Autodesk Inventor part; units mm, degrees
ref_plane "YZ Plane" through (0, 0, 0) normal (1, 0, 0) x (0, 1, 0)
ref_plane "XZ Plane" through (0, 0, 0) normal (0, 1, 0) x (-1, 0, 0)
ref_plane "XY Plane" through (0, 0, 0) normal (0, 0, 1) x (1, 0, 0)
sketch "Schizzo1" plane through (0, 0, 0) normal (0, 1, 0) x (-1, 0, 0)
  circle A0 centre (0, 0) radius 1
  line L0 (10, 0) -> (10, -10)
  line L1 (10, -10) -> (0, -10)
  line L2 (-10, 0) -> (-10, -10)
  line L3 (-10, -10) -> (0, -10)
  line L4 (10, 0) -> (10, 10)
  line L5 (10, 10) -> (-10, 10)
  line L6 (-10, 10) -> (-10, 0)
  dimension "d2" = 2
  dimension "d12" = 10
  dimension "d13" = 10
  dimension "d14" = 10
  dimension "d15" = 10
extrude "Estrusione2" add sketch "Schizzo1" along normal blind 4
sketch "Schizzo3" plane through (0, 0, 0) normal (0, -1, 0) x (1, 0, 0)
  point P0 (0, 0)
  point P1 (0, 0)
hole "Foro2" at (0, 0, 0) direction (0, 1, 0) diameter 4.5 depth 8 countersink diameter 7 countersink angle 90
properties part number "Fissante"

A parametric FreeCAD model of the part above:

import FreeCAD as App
import Part
import Sketcher

doc = App.newDocument("Part")
body = doc.addObject("PartDesign::Body", "Body")

sketch1 = body.newObject("Sketcher::SketchObject", "Sketch")
sketch1.AttachmentSupport = (doc.getObject("XZ_Plane"), [""])
sketch1.MapMode = "FlatFace"
sketch1.addGeometry(Part.LineSegment(App.Vector(-10, -10, 0), App.Vector(-10, 10, 0)), False)
sketch1.addGeometry(Part.LineSegment(App.Vector(-10, 10, 0), App.Vector(10, 10, 0)), False)
sketch1.addGeometry(Part.LineSegment(App.Vector(10, 10, 0), App.Vector(10, -10, 0)), False)
sketch1.addGeometry(Part.LineSegment(App.Vector(10, -10, 0), App.Vector(-10, -10, 0)), False)
sketch1.addGeometry(Part.Circle(App.Vector(0, 0, 0), App.Vector(0, 0, 1), 1), False)
sketch1.addConstraint(Sketcher.Constraint("Coincident", 0, 2, 1, 1))
sketch1.addConstraint(Sketcher.Constraint("Coincident", 1, 2, 2, 1))
sketch1.addConstraint(Sketcher.Constraint("Coincident", 2, 2, 3, 1))
sketch1.addConstraint(Sketcher.Constraint("Coincident", 3, 2, 0, 1))
sketch1.addConstraint(Sketcher.Constraint("Vertical", 0))
sketch1.addConstraint(Sketcher.Constraint("Horizontal", 1))
sketch1.addConstraint(Sketcher.Constraint("Vertical", 2))
sketch1.addConstraint(Sketcher.Constraint("Horizontal", 3))
sketch1.addConstraint(Sketcher.Constraint("Coincident", 4, 3, -1, 1))
sketch1.addConstraint(Sketcher.Constraint("Symmetric", 0, 2, 2, 2, -1, 1))
sketch1.addConstraint(Sketcher.Constraint("Equal", 3, 0))
sketch1.addConstraint(Sketcher.Constraint("Diameter", 4, 2.0))
sketch1.addConstraint(Sketcher.Constraint("DistanceX", 0, 2, -1, 1, 10.0))
pad1 = body.newObject("PartDesign::Pad", "Pad")
pad1.Profile = sketch1
pad1.Length = 4
pad1.Reversed = True

sketch2 = body.newObject("Sketcher::SketchObject", "Sketch001")
sketch2.AttachmentSupport = (doc.getObject("XZ_Plane"), [""])
sketch2.MapMode = "FlatFace"
sketch2.addGeometry(Part.Circle(App.Vector(0, 0, 0), App.Vector(0, 0, 1), 2.2), False)
sketch2.addConstraint(Sketcher.Constraint("Coincident", 0, 3, -1, 1))
sketch2.addConstraint(Sketcher.Constraint("Diameter", 0, 4.5))
doc.recompute()
hole = body.newObject("PartDesign::Hole", "Hole")
hole.Profile = sketch2
hole.ThreadType = "None"
hole.Diameter = 4.5
hole.DepthType = "Dimension"
hole.Depth = 8
hole.DrillPoint = "Flat"
hole.HoleCutType = "Countersink"
hole.HoleCutDiameter = 7
hole.HoleCutCountersinkAngle = 90

doc.recompute()
